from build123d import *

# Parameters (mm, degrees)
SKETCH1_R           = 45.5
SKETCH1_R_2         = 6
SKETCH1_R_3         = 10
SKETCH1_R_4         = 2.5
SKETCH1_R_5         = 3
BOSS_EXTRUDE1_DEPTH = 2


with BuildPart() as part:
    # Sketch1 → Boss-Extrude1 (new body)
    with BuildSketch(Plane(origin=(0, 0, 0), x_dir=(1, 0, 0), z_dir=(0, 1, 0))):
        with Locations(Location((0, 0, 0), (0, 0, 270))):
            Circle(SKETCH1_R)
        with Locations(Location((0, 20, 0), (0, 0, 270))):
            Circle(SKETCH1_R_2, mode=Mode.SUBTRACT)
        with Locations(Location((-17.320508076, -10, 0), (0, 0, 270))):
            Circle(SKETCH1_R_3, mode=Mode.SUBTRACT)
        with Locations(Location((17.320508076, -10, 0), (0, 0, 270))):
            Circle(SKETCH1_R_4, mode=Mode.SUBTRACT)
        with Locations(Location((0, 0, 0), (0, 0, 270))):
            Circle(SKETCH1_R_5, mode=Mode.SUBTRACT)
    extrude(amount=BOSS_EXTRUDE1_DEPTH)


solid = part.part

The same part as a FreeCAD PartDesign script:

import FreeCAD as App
import Part
import Sketcher
from FreeCAD import Vector
Q = App.Units.Quantity

doc = App.newDocument("Part")
body = doc.addObject("PartDesign::Body", "Body")

sketch1 = body.newObject("Sketcher::SketchObject", "Sketch")
sketch1.AttachmentSupport = (doc.getObject("XZ_Plane"), [""])
sketch1.MapMode = "FlatFace"
sketch1.addGeometry([
    Part.Circle(Vector(0, 0, 0), Vector(0, 0, 1), 45.5),
    Part.Circle(Vector(-17.3, 10, 0), Vector(0, 0, 1), 10),
    Part.Circle(Vector(0, -20, 0), Vector(0, 0, 1), 6),
    Part.Circle(Vector(0, 0, 0), Vector(0, 0, 1), 3),
    Part.Circle(Vector(17.3, 10, 0), Vector(0, 0, 1), 2.5),
], False)
sketch1.addConstraint([
    Sketcher.Constraint("Coincident", 0, 3, -1, 1),
    Sketcher.Constraint("Coincident", 3, 3, -1, 1),
    Sketcher.Constraint("Symmetric", 1, 3, 4, 3, -2),
    Sketcher.Constraint("PointOnObject", 2, 3, -2),
    Sketcher.Constraint("Diameter", 0, Q("91 mm")),
    Sketcher.Constraint("Diameter", 1, Q("20 mm")),
    Sketcher.Constraint("Diameter", 2, Q("12 mm")),
    Sketcher.Constraint("Diameter", 3, Q("6 mm")),
    Sketcher.Constraint("Diameter", 4, Q("5 mm")),
    Sketcher.Constraint("DistanceY", -1, 1, 1, 3, Q("10 mm")),
    Sketcher.Constraint("DistanceY", 2, 3, -1, 1, Q("20 mm")),
    Sketcher.Constraint("DistanceX", 1, 3, -1, 1, Q("17.320508 mm")),
])
pad1 = body.newObject("PartDesign::Pad", "Pad")
pad1.Profile = sketch1
pad1.Length = 2
pad1.Reversed = True

doc.recompute()
